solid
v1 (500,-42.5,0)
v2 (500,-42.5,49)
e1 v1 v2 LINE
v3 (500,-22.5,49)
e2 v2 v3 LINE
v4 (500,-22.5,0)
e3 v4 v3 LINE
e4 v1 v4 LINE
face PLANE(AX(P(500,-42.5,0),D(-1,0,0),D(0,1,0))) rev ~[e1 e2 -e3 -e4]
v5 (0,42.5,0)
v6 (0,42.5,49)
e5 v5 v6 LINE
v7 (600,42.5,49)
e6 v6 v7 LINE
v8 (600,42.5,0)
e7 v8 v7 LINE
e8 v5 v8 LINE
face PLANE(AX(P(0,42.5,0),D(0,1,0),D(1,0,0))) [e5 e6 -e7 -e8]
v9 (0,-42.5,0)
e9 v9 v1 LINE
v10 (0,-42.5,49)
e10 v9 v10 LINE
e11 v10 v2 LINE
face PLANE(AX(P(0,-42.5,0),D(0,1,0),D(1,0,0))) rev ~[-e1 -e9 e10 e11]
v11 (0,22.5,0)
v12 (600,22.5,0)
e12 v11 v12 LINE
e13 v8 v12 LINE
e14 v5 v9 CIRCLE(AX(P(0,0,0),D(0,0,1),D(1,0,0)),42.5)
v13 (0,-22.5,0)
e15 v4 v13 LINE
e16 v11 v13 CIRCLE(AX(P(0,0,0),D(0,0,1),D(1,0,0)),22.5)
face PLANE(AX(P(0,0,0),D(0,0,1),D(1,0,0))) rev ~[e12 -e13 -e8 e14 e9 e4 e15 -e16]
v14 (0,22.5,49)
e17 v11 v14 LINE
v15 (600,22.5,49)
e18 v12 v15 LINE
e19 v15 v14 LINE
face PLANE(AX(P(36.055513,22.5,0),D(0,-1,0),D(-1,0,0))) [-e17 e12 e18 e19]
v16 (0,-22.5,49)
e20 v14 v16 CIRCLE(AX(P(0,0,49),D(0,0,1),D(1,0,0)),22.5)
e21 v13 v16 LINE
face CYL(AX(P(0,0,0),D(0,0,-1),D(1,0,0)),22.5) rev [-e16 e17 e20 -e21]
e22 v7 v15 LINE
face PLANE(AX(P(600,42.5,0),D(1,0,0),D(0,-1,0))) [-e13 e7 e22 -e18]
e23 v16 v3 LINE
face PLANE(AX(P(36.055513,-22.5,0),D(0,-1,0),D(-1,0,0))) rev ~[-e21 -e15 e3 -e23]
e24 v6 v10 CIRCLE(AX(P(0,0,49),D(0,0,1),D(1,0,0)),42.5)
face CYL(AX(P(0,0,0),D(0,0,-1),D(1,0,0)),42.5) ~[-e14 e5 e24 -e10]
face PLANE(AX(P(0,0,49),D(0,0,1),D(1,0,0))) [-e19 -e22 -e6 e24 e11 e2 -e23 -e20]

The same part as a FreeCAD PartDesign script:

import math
import FreeCAD as App
import Part
import Sketcher
Q = App.Units.Quantity

doc = App.newDocument("Part")
params = doc.addObject("Spreadsheet::Sheet", "Params")
for row, (alias, value) in enumerate([
    ("sketch1_radius", "42.5 mm"),
    ("sketch1_width", "600 mm"),
    ("sketch1_width2", "500 mm"),
    ("sketch1_height", "20 mm"),
    ("pad1_length", "49 mm"),
], start=1):
    params.set(f"A{row}", alias)
    params.set(f"B{row}", "=" + value)
    params.setAlias(f"B{row}", alias)

body = doc.addObject("PartDesign::Body", "Body")

sketch1 = body.newObject("Sketcher::SketchObject", "Sketch")
sketch1.AttachmentSupport = (doc.getObject("XY_Plane"), [""])
sketch1.MapMode = "FlatFace"
sketch1.addGeometry(Part.ArcOfCircle(Part.Circle(App.Vector(0, 0, 0), App.Vector(0, 0, 1), 22.5), math.radians(90), math.radians(270)), False)
sketch1.addGeometry(Part.LineSegment(App.Vector(0, 22.5, 0), App.Vector(600, 22.5, 0)), False)
sketch1.addGeometry(Part.LineSegment(App.Vector(600, 22.5, 0), App.Vector(600, 42.5, 0)), False)
sketch1.addGeometry(Part.LineSegment(App.Vector(600, 42.5, 0), App.Vector(0, 42.5, 0)), False)
sketch1.addGeometry(Part.ArcOfCircle(Part.Circle(App.Vector(0, 0, 0), App.Vector(0, 0, 1), 42.5), math.radians(90), math.radians(270)), False)
sketch1.addGeometry(Part.LineSegment(App.Vector(0, -42.5, 0), App.Vector(500, -42.5, 0)), False)
sketch1.addGeometry(Part.LineSegment(App.Vector(500, -42.5, 0), App.Vector(500, -22.5, 0)), False)
sketch1.addGeometry(Part.LineSegment(App.Vector(500, -22.5, 0), App.Vector(0, -22.5, 0)), False)
sketch1.addConstraint(Sketcher.Constraint("Tangent", 0, 1, 1, 1))
sketch1.addConstraint(Sketcher.Constraint("Coincident", 1, 2, 2, 1))
sketch1.addConstraint(Sketcher.Constraint("Coincident", 2, 2, 3, 1))
sketch1.addConstraint(Sketcher.Constraint("Tangent", 3, 2, 4, 1))
sketch1.addConstraint(Sketcher.Constraint("Tangent", 4, 2, 5, 1))
sketch1.addConstraint(Sketcher.Constraint("Coincident", 5, 2, 6, 1))
sketch1.addConstraint(Sketcher.Constraint("Coincident", 6, 2, 7, 1))
sketch1.addConstraint(Sketcher.Constraint("Tangent", 7, 2, 0, 2))
sketch1.addConstraint(Sketcher.Constraint("Horizontal", 1))
sketch1.addConstraint(Sketcher.Constraint("Vertical", 2))
sketch1.addConstraint(Sketcher.Constraint("Horizontal", 3))
sketch1.addConstraint(Sketcher.Constraint("Horizontal", 5))
sketch1.addConstraint(Sketcher.Constraint("Vertical", 6))
sketch1.addConstraint(Sketcher.Constraint("Horizontal", 7))
sketch1.addConstraint(Sketcher.Constraint("Coincident", 0, 3, -1, 1))
sketch1.addConstraint(Sketcher.Constraint("Coincident", 4, 3, -1, 1))
sketch1.addConstraint(Sketcher.Constraint("Radius", 4, Q("42.5 mm")))
sketch1.addConstraint(Sketcher.Constraint("DistanceX", 1, 1, 1, 2, Q("600 mm")))
sketch1.addConstraint(Sketcher.Constraint("DistanceX", 5, 1, 5, 2, Q("500 mm")))
sketch1.addConstraint(Sketcher.Constraint("DistanceY", 2, 1, 2, 2, Q("20 mm")))
sketch1.setExpression("Constraints[16]", "Params.sketch1_radius")
sketch1.setExpression("Constraints[17]", "Params.sketch1_width")
sketch1.setExpression("Constraints[18]", "Params.sketch1_width2")
sketch1.setExpression("Constraints[19]", "Params.sketch1_height")
pad1 = body.newObject("PartDesign::Pad", "Pad")
pad1.Profile = sketch1
pad1.setExpression("Length", "Params.pad1_length")

doc.recompute()
